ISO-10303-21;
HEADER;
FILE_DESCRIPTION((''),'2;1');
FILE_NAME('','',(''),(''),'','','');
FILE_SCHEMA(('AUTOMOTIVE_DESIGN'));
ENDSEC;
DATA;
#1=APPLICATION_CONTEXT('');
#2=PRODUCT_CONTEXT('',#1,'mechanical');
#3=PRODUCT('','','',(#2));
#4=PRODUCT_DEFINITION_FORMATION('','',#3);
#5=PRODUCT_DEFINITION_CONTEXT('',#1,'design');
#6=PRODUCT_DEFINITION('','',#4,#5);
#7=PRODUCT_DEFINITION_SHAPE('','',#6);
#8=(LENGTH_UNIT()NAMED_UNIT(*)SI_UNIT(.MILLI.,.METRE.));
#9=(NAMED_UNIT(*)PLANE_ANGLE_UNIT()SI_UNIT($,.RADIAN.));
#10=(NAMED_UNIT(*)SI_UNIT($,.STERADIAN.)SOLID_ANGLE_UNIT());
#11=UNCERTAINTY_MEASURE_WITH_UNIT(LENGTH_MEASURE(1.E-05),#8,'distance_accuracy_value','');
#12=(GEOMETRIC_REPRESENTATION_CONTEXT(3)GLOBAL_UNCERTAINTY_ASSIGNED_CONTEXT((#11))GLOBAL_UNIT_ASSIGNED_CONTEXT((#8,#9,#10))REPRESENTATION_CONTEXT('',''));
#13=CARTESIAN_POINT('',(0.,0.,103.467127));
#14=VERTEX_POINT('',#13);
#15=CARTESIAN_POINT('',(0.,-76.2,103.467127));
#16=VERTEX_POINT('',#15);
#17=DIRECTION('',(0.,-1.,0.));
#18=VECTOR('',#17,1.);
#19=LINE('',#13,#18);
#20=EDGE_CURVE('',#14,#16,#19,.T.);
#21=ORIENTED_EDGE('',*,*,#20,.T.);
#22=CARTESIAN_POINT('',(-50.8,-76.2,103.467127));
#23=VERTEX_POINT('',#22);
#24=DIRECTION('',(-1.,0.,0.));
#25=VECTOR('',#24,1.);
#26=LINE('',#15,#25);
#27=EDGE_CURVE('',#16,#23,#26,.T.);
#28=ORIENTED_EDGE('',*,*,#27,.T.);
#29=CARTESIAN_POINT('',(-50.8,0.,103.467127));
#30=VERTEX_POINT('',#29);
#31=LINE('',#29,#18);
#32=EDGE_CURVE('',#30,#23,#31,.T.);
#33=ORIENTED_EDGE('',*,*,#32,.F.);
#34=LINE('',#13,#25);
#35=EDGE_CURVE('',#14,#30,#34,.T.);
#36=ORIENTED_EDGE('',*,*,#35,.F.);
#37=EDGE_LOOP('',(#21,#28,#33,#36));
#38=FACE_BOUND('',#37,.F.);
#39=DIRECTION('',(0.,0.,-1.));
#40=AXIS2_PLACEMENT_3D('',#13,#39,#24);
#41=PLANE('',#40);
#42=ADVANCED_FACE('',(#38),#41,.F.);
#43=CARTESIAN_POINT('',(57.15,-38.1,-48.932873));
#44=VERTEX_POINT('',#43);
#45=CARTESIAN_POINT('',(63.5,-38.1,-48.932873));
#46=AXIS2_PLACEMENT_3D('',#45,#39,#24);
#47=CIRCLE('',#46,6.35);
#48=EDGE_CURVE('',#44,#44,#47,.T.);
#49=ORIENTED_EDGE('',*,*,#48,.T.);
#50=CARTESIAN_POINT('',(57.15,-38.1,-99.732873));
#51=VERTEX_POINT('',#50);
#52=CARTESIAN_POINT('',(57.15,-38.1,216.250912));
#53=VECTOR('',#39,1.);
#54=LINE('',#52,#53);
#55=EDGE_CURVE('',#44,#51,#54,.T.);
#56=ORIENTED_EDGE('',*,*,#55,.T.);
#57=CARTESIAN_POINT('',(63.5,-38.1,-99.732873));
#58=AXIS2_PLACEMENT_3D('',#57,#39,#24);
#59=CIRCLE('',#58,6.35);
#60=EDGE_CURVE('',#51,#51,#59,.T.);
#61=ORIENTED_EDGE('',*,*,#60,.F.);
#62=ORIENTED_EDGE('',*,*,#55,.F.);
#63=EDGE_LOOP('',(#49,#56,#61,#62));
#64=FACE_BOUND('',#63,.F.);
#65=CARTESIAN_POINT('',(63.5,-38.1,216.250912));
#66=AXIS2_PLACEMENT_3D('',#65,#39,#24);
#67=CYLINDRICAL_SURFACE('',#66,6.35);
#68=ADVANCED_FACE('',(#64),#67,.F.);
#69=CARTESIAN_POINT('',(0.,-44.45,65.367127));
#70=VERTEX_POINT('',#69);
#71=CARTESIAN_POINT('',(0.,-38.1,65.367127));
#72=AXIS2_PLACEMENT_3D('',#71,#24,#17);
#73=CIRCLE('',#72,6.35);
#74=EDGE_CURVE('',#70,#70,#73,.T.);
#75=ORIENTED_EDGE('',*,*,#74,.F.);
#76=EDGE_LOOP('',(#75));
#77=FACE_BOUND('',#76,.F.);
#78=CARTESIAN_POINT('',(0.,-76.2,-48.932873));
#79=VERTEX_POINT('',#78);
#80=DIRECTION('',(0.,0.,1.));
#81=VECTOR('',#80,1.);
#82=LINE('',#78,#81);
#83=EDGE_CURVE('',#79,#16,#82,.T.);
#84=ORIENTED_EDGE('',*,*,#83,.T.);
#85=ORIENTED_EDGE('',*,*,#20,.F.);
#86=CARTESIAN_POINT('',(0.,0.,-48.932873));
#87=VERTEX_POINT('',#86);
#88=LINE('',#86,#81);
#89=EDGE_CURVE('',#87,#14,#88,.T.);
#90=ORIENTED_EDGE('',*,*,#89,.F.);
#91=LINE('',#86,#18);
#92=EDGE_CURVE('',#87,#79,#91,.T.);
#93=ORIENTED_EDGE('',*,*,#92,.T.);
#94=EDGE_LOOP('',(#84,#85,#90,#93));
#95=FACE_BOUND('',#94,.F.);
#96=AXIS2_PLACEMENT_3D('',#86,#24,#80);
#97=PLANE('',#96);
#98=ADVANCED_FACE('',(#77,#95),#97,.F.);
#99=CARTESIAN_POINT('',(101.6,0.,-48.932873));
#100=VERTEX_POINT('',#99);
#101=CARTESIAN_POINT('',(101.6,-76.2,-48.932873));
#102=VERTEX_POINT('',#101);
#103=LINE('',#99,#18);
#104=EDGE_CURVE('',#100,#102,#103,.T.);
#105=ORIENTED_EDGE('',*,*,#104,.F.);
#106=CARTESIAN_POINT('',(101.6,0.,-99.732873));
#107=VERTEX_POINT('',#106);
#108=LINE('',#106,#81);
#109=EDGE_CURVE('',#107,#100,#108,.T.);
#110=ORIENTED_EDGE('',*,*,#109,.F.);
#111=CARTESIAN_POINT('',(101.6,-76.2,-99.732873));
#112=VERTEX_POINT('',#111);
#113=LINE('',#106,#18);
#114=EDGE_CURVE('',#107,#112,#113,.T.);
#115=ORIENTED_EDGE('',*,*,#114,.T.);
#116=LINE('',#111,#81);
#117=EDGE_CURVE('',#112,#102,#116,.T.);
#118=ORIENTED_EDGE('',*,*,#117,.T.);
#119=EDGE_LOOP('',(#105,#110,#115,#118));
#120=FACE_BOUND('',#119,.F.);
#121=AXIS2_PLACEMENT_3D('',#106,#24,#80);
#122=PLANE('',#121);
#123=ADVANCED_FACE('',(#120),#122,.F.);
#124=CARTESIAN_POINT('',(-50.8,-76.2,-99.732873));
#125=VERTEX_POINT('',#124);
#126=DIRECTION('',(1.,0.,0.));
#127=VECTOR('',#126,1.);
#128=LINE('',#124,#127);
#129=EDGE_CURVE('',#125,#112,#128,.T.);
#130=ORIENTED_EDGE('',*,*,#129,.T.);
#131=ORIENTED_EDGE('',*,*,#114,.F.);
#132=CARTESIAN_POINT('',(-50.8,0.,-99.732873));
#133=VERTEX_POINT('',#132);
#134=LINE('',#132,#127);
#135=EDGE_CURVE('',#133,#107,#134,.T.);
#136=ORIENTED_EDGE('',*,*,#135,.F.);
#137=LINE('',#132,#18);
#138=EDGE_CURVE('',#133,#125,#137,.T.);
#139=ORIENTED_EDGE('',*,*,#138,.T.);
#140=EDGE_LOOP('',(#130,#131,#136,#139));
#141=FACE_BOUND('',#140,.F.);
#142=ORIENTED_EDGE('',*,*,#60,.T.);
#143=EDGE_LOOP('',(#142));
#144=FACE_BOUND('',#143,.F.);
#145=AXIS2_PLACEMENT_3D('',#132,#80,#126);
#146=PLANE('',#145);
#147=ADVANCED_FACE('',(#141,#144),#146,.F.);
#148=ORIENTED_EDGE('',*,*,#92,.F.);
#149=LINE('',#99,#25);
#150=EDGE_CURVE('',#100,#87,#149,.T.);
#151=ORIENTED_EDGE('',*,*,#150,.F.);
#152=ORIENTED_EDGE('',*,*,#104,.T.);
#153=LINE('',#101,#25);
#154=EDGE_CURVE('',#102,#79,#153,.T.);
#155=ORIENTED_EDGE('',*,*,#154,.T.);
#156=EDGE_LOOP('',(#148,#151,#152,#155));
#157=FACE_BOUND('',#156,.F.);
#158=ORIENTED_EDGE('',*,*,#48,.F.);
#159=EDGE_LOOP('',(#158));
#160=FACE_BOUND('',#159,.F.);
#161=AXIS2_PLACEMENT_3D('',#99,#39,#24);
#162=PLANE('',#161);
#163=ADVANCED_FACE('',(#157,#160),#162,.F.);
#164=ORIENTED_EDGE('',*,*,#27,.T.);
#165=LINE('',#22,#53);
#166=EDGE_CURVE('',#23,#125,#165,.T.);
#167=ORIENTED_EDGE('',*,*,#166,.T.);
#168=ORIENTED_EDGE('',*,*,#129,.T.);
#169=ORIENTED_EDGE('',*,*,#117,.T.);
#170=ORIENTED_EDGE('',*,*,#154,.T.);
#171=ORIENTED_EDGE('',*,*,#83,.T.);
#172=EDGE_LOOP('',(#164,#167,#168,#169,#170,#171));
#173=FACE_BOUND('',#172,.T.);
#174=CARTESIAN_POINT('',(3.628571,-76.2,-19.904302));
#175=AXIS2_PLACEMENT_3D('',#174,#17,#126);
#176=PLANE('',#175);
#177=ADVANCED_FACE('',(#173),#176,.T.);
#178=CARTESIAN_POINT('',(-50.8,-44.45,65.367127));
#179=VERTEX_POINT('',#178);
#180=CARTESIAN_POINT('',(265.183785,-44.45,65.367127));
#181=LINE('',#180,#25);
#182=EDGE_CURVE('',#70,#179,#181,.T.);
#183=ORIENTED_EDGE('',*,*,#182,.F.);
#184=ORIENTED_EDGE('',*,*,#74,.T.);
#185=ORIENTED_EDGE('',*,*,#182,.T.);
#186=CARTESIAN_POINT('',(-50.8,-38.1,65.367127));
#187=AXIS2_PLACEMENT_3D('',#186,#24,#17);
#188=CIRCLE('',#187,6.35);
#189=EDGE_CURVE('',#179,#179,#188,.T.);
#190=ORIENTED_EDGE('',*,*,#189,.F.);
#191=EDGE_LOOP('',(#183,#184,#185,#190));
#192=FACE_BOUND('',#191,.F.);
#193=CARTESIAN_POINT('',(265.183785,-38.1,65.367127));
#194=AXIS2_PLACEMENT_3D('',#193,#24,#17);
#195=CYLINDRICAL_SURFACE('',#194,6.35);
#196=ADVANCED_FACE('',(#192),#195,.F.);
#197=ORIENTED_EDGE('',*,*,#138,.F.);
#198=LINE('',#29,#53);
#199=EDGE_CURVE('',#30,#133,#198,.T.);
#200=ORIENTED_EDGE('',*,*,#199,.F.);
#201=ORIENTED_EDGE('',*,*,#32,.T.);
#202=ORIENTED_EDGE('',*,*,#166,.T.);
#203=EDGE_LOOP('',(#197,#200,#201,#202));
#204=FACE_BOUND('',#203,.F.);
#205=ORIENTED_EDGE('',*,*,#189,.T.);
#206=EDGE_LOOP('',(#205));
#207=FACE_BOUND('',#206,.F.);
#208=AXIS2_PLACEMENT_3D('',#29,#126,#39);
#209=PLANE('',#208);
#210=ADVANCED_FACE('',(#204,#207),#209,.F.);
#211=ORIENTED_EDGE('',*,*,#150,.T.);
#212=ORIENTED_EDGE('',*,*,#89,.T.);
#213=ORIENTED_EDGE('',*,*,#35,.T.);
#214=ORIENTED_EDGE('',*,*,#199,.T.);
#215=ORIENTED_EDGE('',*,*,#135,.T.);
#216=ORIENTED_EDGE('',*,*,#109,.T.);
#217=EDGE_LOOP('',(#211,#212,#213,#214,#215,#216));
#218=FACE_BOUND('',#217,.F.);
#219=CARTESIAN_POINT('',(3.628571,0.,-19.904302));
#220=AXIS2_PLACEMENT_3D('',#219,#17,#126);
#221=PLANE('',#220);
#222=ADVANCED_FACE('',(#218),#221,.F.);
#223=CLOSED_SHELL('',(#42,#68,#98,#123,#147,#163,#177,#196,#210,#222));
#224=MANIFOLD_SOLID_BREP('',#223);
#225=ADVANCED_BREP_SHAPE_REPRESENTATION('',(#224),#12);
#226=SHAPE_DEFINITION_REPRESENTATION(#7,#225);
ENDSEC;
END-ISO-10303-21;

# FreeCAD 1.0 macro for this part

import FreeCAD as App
import Part
import Sketcher
from FreeCAD import Vector
Q = App.Units.Quantity


def add_polygon(sketch, points):
    """Adds a closed chain of lines whose ends are joined by coincident constraints."""
    first, n = sketch.GeometryCount, len(points)
    for a, b in zip(points, points[1:] + points[:1]):
        sketch.addGeometry(Part.LineSegment(App.Vector(*a, 0), App.Vector(*b, 0)), False)
    for i in range(n):
        sketch.addConstraint(Sketcher.Constraint("Coincident", first + i, 2, first + (i + 1) % n, 1))

doc = App.newDocument("Part")
body = doc.addObject("PartDesign::Body", "Body")

# Sketch on XZ plane
sketch1 = body.newObject("Sketcher::SketchObject", "Sketch")
sketch1.AttachmentSupport = (doc.getObject("XZ_Plane"), [""])
sketch1.MapMode = "FlatFace"
add_polygon(sketch1, [(0, 103), (-51, 103), (-51, -100), (102, -100), (102, -49), (0, -49)])  # lines 0-5
sketch1.addConstraint(Sketcher.Constraint("Horizontal", 0))
sketch1.addConstraint(Sketcher.Constraint("Vertical", 1))
sketch1.addConstraint(Sketcher.Constraint("Horizontal", 2))
sketch1.addConstraint(Sketcher.Constraint("Vertical", 3))
sketch1.addConstraint(Sketcher.Constraint("Horizontal", 4))
sketch1.addConstraint(Sketcher.Constraint("Vertical", 5))
sketch1.addConstraint(Sketcher.Constraint("PointOnObject", 4, 2, -2))
sketch1.addConstraint(Sketcher.Constraint("Equal", 0, 3))
sketch1.addConstraint(Sketcher.Constraint("Equal", 2, 5))
sketch1.addConstraint(Sketcher.Constraint("DistanceX", 0, 2, 0, 1, Q("2 in")))
sketch1.addConstraint(Sketcher.Constraint("DistanceX", 2, 1, 2, 2, Q("6 in")))
sketch1.addConstraint(Sketcher.Constraint("DistanceY", -1, 1, 0, 2, 103.467127))
pad1 = body.newObject("PartDesign::Pad", "Pad")
pad1.Profile = sketch1
pad1.Length = Q("3 in")

# Sketch on YZ plane
sketch2 = body.newObject("Sketcher::SketchObject", "Sketch001")
sketch2.AttachmentSupport = (doc.getObject("YZ_Plane"), [""])
sketch2.MapMode = "FlatFace"
sketch2.addGeometry(Part.Circle(Vector(-38, 65, 0), Vector(0, 0, 1), 6), False)
sketch2.addConstraint(Sketcher.Constraint("Diameter", 0, Q("0.5 in")))
sketch2.addConstraint(Sketcher.Constraint("DistanceX", 0, 3, -1, 1, Q("1.5 in")))
sketch2.addConstraint(Sketcher.Constraint("DistanceY", -1, 1, 0, 3, 65.367127))
doc.recompute()
hole = body.newObject("PartDesign::Hole", "Hole")
hole.Profile = sketch2
hole.ThreadType = "None"
hole.Diameter = Q("0.5 in")
hole.DepthType = "ThroughAll"

# Sketch on XY plane
sketch3 = body.newObject("Sketcher::SketchObject", "Sketch002")
sketch3.AttachmentSupport = (doc.getObject("XY_Plane"), [""])
sketch3.MapMode = "FlatFace"
sketch3.AttachmentOffset = App.Placement(Vector(0, 0, -48.932873), App.Rotation())
sketch3.addGeometry(Part.Circle(Vector(64, -38, 0), Vector(0, 0, 1), 6), False)
sketch3.addConstraint(Sketcher.Constraint("Diameter", 0, Q("0.5 in")))
sketch3.addConstraint(Sketcher.Constraint("DistanceX", -1, 1, 0, 3, Q("2.5 in")))
sketch3.addConstraint(Sketcher.Constraint("DistanceY", 0, 3, -1, 1, Q("1.5 in")))
doc.recompute()
hole2 = body.newObject("PartDesign::Hole", "Hole001")
hole2.Profile = sketch3
hole2.ThreadType = "None"
hole2.Diameter = Q("0.5 in")
hole2.DepthType = "ThroughAll"

doc.recompute()
